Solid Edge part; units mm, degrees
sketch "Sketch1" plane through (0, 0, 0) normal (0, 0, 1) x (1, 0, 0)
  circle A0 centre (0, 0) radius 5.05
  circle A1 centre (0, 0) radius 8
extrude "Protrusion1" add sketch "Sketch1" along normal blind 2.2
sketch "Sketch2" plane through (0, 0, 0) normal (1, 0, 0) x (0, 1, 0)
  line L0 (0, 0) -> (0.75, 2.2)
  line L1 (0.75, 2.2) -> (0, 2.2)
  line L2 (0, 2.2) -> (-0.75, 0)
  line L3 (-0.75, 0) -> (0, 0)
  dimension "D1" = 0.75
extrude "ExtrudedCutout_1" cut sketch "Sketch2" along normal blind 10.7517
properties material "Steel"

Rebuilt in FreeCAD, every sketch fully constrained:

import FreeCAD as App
import Part
import Sketcher
Q = App.Units.Quantity


def add_polygon(sketch, points):
    """Adds a closed chain of lines whose ends are joined by coincident constraints."""
    first, n = sketch.GeometryCount, len(points)
    for a, b in zip(points, points[1:] + points[:1]):
        sketch.addGeometry(Part.LineSegment(App.Vector(*a, 0), App.Vector(*b, 0)), False)
    for i in range(n):
        sketch.addConstraint(Sketcher.Constraint("Coincident", first + i, 2, first + (i + 1) % n, 1))

doc = App.newDocument("Part")
body = doc.addObject("PartDesign::Body", "Body")

sketch1 = body.newObject("Sketcher::SketchObject", "Sketch")
sketch1.AttachmentSupport = (doc.getObject("XY_Plane"), [""])
sketch1.MapMode = "FlatFace"
sketch1.addGeometry(Part.Circle(App.Vector(0, 0, 0), App.Vector(0, 0, 1), 8), False)
sketch1.addGeometry(Part.Circle(App.Vector(0, 0, 0), App.Vector(0, 0, 1), 5), False)
sketch1.addConstraint(Sketcher.Constraint("Coincident", 0, 3, -1, 1))
sketch1.addConstraint(Sketcher.Constraint("Coincident", 1, 3, -1, 1))
sketch1.addConstraint(Sketcher.Constraint("Diameter", 0, Q("16 mm")))
sketch1.addConstraint(Sketcher.Constraint("Diameter", 1, Q("10.1 mm")))
pad1 = body.newObject("PartDesign::Pad", "Pad")
pad1.Profile = sketch1
pad1.Length = 2.2

sketch2 = body.newObject("Sketcher::SketchObject", "Sketch001")
sketch2.AttachmentSupport = (doc.getObject("YZ_Plane"), [""])
sketch2.MapMode = "FlatFace"
add_polygon(sketch2, [(-0.8, 0), (0, 0), (0.8, 2.2), (0, 2.2)])
sketch2.addConstraint(Sketcher.Constraint("Horizontal", 0))
sketch2.addConstraint(Sketcher.Constraint("Horizontal", 2))
sketch2.addConstraint(Sketcher.Constraint("Coincident", 0, 2, -1, 1))
sketch2.addConstraint(Sketcher.Constraint("PointOnObject", 2, 2, -2))
sketch2.addConstraint(Sketcher.Constraint("Parallel", 1, 3))
sketch2.addConstraint(Sketcher.Constraint("DistanceX", 0, 1, 0, 2, Q("0.75 mm")))
sketch2.addConstraint(Sketcher.Constraint("DistanceY", -1, 1, 1, 2, Q("2.2 mm")))
pocket1 = body.newObject("PartDesign::Pocket", "Pocket")
pocket1.Profile = sketch2
pocket1.Length = 10.7517
pocket1.Reversed = True

doc.recompute()
